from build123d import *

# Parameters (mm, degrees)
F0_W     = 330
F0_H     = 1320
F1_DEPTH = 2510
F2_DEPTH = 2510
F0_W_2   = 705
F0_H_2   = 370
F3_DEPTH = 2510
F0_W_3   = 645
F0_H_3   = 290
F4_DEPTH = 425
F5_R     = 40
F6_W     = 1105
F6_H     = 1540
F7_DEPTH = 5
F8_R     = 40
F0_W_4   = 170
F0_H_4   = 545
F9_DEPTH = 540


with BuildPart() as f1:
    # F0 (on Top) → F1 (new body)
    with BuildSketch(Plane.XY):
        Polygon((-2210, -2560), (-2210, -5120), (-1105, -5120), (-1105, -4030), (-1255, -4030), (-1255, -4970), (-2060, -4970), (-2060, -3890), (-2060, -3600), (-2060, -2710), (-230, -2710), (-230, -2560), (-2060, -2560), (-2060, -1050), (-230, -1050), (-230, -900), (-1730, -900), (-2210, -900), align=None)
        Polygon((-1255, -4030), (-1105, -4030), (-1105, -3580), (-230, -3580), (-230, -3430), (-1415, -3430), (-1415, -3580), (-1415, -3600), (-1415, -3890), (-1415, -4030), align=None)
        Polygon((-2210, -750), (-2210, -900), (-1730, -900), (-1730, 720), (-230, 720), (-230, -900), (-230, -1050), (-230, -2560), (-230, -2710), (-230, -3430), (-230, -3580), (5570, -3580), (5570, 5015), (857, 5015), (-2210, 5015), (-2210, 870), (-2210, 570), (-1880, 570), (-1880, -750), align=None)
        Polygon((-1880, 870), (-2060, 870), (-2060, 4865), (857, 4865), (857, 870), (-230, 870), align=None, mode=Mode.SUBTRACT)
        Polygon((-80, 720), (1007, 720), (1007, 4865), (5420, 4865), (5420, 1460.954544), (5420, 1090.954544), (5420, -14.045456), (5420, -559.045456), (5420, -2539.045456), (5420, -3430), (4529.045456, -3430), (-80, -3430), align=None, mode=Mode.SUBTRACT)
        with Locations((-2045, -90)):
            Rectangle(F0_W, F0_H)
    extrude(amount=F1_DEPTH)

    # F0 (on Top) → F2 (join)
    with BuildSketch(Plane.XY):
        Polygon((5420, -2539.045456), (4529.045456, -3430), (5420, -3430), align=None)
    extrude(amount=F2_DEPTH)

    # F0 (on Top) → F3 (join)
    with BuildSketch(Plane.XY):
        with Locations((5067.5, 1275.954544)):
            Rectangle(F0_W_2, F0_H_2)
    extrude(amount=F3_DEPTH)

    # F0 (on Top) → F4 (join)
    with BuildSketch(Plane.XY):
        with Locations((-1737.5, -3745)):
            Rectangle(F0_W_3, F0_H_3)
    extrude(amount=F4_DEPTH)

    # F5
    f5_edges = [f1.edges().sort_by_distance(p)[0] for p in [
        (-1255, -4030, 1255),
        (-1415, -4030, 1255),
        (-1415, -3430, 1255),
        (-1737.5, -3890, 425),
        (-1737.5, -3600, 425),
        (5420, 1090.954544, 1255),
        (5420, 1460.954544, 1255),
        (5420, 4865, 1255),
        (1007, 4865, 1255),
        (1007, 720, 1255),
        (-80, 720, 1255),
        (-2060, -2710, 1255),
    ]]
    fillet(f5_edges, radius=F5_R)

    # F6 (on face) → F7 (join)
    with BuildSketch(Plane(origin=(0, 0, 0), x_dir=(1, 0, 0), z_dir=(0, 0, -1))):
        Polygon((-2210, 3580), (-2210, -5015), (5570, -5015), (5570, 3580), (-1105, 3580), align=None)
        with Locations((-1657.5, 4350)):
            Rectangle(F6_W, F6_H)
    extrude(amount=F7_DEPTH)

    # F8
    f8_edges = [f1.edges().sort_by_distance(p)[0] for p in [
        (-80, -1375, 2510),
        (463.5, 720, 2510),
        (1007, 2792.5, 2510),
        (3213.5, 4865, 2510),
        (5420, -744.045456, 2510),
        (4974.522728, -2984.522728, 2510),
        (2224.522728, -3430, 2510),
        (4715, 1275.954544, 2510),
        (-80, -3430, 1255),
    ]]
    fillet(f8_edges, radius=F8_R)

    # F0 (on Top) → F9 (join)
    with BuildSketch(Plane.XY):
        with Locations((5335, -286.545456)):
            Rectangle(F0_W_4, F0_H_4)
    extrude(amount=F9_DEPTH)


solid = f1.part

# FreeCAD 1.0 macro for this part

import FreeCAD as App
import Part
import Sketcher
Q = App.Units.Quantity


def edges_at(feature, points):
    """Names of the edges that pass closest to the given points."""
    edges = feature.Shape.Edges
    near = lambda p: min(range(len(edges)), key=lambda i: edges[i].distToShape(Part.Vertex(*p))[0])
    return sorted({f"Edge{near(p) + 1}" for p in points})

doc = App.newDocument("Part")
body = doc.addObject("PartDesign::Body", "Body")

sketch1 = body.newObject("Sketcher::SketchObject", "Sketch")
sketch1.AttachmentSupport = (doc.getObject("XY_Plane"), [""])
sketch1.MapMode = "FlatFace"
sketch1.addGeometry(Part.LineSegment(App.Vector(-2210, -5120, 0), App.Vector(-1105, -5120, 0)), False)
sketch1.addGeometry(Part.LineSegment(App.Vector(-1105, -5120, 0), App.Vector(-1105, -3580, 0)), False)
sketch1.addGeometry(Part.LineSegment(App.Vector(-1105, -3580, 0), App.Vector(5570, -3580, 0)), False)
sketch1.addGeometry(Part.LineSegment(App.Vector(5570, -3580, 0), App.Vector(5570, 5015, 0)), False)
sketch1.addGeometry(Part.LineSegment(App.Vector(5570, 5015, 0), App.Vector(-2210, 5015, 0)), False)
sketch1.addGeometry(Part.LineSegment(App.Vector(-2210, 5015, 0), App.Vector(-2210, -5120, 0)), False)
sketch1.addGeometry(Part.LineSegment(App.Vector(-230, -3430, 0), App.Vector(-1415, -3430, 0)), False)
sketch1.addGeometry(Part.LineSegment(App.Vector(-1415, -3430, 0), App.Vector(-1415, -4030, 0)), False)
sketch1.addGeometry(Part.LineSegment(App.Vector(-1415, -4030, 0), App.Vector(-1255, -4030, 0)), False)
sketch1.addGeometry(Part.LineSegment(App.Vector(-1255, -4030, 0), App.Vector(-1255, -4970, 0)), False)
sketch1.addGeometry(Part.LineSegment(App.Vector(-1255, -4970, 0), App.Vector(-2060, -4970, 0)), False)
sketch1.addGeometry(Part.LineSegment(App.Vector(-2060, -4970, 0), App.Vector(-2060, -2710, 0)), False)
sketch1.addGeometry(Part.LineSegment(App.Vector(-2060, -2710, 0), App.Vector(-230, -2710, 0)), False)
sketch1.addGeometry(Part.LineSegment(App.Vector(-230, -2710, 0), App.Vector(-230, -3430, 0)), False)
sketch1.addGeometry(Part.LineSegment(App.Vector(-230, -2560, 0), App.Vector(-2060, -2560, 0)), False)
sketch1.addGeometry(Part.LineSegment(App.Vector(-2060, -2560, 0), App.Vector(-2060, -1050, 0)), False)
sketch1.addGeometry(Part.LineSegment(App.Vector(-2060, -1050, 0), App.Vector(-230, -1050, 0)), False)
sketch1.addGeometry(Part.LineSegment(App.Vector(-230, -1050, 0), App.Vector(-230, -2560, 0)), False)
sketch1.addGeometry(Part.LineSegment(App.Vector(-230, -900, 0), App.Vector(-1730, -900, 0)), False)
sketch1.addGeometry(Part.LineSegment(App.Vector(-1730, -900, 0), App.Vector(-1730, 720, 0)), False)
sketch1.addGeometry(Part.LineSegment(App.Vector(-1730, 720, 0), App.Vector(-230, 720, 0)), False)
sketch1.addGeometry(Part.LineSegment(App.Vector(-230, 720, 0), App.Vector(-230, -900, 0)), False)
sketch1.addGeometry(Part.LineSegment(App.Vector(857, 870, 0), App.Vector(-2060, 870, 0)), False)
sketch1.addGeometry(Part.LineSegment(App.Vector(-2060, 870, 0), App.Vector(-2060, 4865, 0)), False)
sketch1.addGeometry(Part.LineSegment(App.Vector(-2060, 4865, 0), App.Vector(857, 4865, 0)), False)
sketch1.addGeometry(Part.LineSegment(App.Vector(857, 4865, 0), App.Vector(857, 870, 0)), False)
sketch1.addGeometry(Part.LineSegment(App.Vector(-80, -3430, 0), App.Vector(-80, 720, 0)), False)
sketch1.addGeometry(Part.LineSegment(App.Vector(-80, 720, 0), App.Vector(1007, 720, 0)), False)
sketch1.addGeometry(Part.LineSegment(App.Vector(1007, 720, 0), App.Vector(1007, 4865, 0)), False)
sketch1.addGeometry(Part.LineSegment(App.Vector(1007, 4865, 0), App.Vector(5420, 4865, 0)), False)
sketch1.addGeometry(Part.LineSegment(App.Vector(5420, 4865, 0), App.Vector(5420, -3430, 0)), False)
sketch1.addGeometry(Part.LineSegment(App.Vector(5420, -3430, 0), App.Vector(-80, -3430, 0)), False)
sketch1.addConstraint(Sketcher.Constraint("Coincident", 0, 2, 1, 1))
sketch1.addConstraint(Sketcher.Constraint("Coincident", 1, 2, 2, 1))
sketch1.addConstraint(Sketcher.Constraint("Coincident", 2, 2, 3, 1))
sketch1.addConstraint(Sketcher.Constraint("Coincident", 3, 2, 4, 1))
sketch1.addConstraint(Sketcher.Constraint("Coincident", 4, 2, 5, 1))
sketch1.addConstraint(Sketcher.Constraint("Coincident", 5, 2, 0, 1))
sketch1.addConstraint(Sketcher.Constraint("Coincident", 6, 2, 7, 1))
sketch1.addConstraint(Sketcher.Constraint("Coincident", 7, 2, 8, 1))
sketch1.addConstraint(Sketcher.Constraint("Coincident", 8, 2, 9, 1))
sketch1.addConstraint(Sketcher.Constraint("Coincident", 9, 2, 10, 1))
sketch1.addConstraint(Sketcher.Constraint("Coincident", 10, 2, 11, 1))
sketch1.addConstraint(Sketcher.Constraint("Coincident", 11, 2, 12, 1))
sketch1.addConstraint(Sketcher.Constraint("Coincident", 12, 2, 13, 1))
sketch1.addConstraint(Sketcher.Constraint("Coincident", 13, 2, 6, 1))
sketch1.addConstraint(Sketcher.Constraint("Coincident", 14, 2, 15, 1))
sketch1.addConstraint(Sketcher.Constraint("Coincident", 15, 2, 16, 1))
sketch1.addConstraint(Sketcher.Constraint("Coincident", 16, 2, 17, 1))
sketch1.addConstraint(Sketcher.Constraint("Coincident", 17, 2, 14, 1))
sketch1.addConstraint(Sketcher.Constraint("Coincident", 18, 2, 19, 1))
sketch1.addConstraint(Sketcher.Constraint("Coincident", 19, 2, 20, 1))
sketch1.addConstraint(Sketcher.Constraint("Coincident", 20, 2, 21, 1))
sketch1.addConstraint(Sketcher.Constraint("Coincident", 21, 2, 18, 1))
sketch1.addConstraint(Sketcher.Constraint("Coincident", 22, 2, 23, 1))
sketch1.addConstraint(Sketcher.Constraint("Coincident", 23, 2, 24, 1))
sketch1.addConstraint(Sketcher.Constraint("Coincident", 24, 2, 25, 1))
sketch1.addConstraint(Sketcher.Constraint("Coincident", 25, 2, 22, 1))
sketch1.addConstraint(Sketcher.Constraint("Coincident", 26, 2, 27, 1))
sketch1.addConstraint(Sketcher.Constraint("Coincident", 27, 2, 28, 1))
sketch1.addConstraint(Sketcher.Constraint("Coincident", 28, 2, 29, 1))
sketch1.addConstraint(Sketcher.Constraint("Coincident", 29, 2, 30, 1))
sketch1.addConstraint(Sketcher.Constraint("Coincident", 30, 2, 31, 1))
sketch1.addConstraint(Sketcher.Constraint("Coincident", 31, 2, 26, 1))
sketch1.addConstraint(Sketcher.Constraint("Horizontal", 0))
sketch1.addConstraint(Sketcher.Constraint("Vertical", 1))
sketch1.addConstraint(Sketcher.Constraint("Horizontal", 2))
sketch1.addConstraint(Sketcher.Constraint("Vertical", 3))
sketch1.addConstraint(Sketcher.Constraint("Horizontal", 4))
sketch1.addConstraint(Sketcher.Constraint("Vertical", 5))
sketch1.addConstraint(Sketcher.Constraint("Horizontal", 6))
sketch1.addConstraint(Sketcher.Constraint("Vertical", 7))
sketch1.addConstraint(Sketcher.Constraint("Horizontal", 8))
sketch1.addConstraint(Sketcher.Constraint("Vertical", 9))
sketch1.addConstraint(Sketcher.Constraint("Horizontal", 10))
sketch1.addConstraint(Sketcher.Constraint("Vertical", 11))
sketch1.addConstraint(Sketcher.Constraint("Horizontal", 12))
sketch1.addConstraint(Sketcher.Constraint("Vertical", 13))
sketch1.addConstraint(Sketcher.Constraint("Horizontal", 14))
sketch1.addConstraint(Sketcher.Constraint("Vertical", 15))
sketch1.addConstraint(Sketcher.Constraint("Horizontal", 16))
sketch1.addConstraint(Sketcher.Constraint("Vertical", 17))
sketch1.addConstraint(Sketcher.Constraint("Horizontal", 18))
sketch1.addConstraint(Sketcher.Constraint("Vertical", 19))
sketch1.addConstraint(Sketcher.Constraint("Horizontal", 20))
sketch1.addConstraint(Sketcher.Constraint("Vertical", 21))
sketch1.addConstraint(Sketcher.Constraint("Horizontal", 22))
sketch1.addConstraint(Sketcher.Constraint("Vertical", 23))
sketch1.addConstraint(Sketcher.Constraint("Horizontal", 24))
sketch1.addConstraint(Sketcher.Constraint("Vertical", 25))
sketch1.addConstraint(Sketcher.Constraint("Vertical", 26))
sketch1.addConstraint(Sketcher.Constraint("Horizontal", 27))
sketch1.addConstraint(Sketcher.Constraint("Vertical", 28))
sketch1.addConstraint(Sketcher.Constraint("Horizontal", 29))
sketch1.addConstraint(Sketcher.Constraint("Vertical", 30))
sketch1.addConstraint(Sketcher.Constraint("Horizontal", 31))
sketch1.addConstraint(Sketcher.Constraint("Horizontal", 20, 2, 26, 2))
sketch1.addConstraint(Sketcher.Constraint("Horizontal", 24, 2, 28, 2))
sketch1.addConstraint(Sketcher.Constraint("Horizontal", 13, 2, 30, 2))
sketch1.addConstraint(Sketcher.Constraint("Vertical", 11, 2, 14, 2))
sketch1.addConstraint(Sketcher.Constraint("Vertical", 13, 2, 16, 2))
sketch1.addConstraint(Sketcher.Constraint("Vertical", 17, 2, 20, 2))
sketch1.addConstraint(Sketcher.Constraint("Vertical", 15, 2, 22, 2))
sketch1.addConstraint(Sketcher.Constraint("DistanceX", 0, 1, 0, 2, Q("1105 mm")))
sketch1.addConstraint(Sketcher.Constraint("DistanceX", 2, 1, 2, 2, Q("6675 mm")))
sketch1.addConstraint(Sketcher.Constraint("DistanceX", 6, 2, 6, 1, Q("1185 mm")))
sketch1.addConstraint(Sketcher.Constraint("DistanceX", 8, 1, 8, 2, Q("160 mm")))
sketch1.addConstraint(Sketcher.Constraint("DistanceX", 10, 2, 10, 1, Q("805 mm")))
sketch1.addConstraint(Sketcher.Constraint("DistanceX", 18, 2, 18, 1, Q("1500 mm")))
sketch1.addConstraint(Sketcher.Constraint("DistanceX", 22, 2, 22, 1, Q("2917 mm")))
sketch1.addConstraint(Sketcher.Constraint("DistanceX", 27, 1, 27, 2, Q("1087 mm")))
sketch1.addConstraint(Sketcher.Constraint("DistanceX", 29, 1, 29, 2, Q("4413 mm")))
sketch1.addConstraint(Sketcher.Constraint("DistanceY", 1, 1, 1, 2, Q("1540 mm")))
sketch1.addConstraint(Sketcher.Constraint("DistanceY", 3, 1, 3, 2, Q("8595 mm")))
sketch1.addConstraint(Sketcher.Constraint("DistanceY", 7, 2, 7, 1, Q("600 mm")))
sketch1.addConstraint(Sketcher.Constraint("DistanceY", 9, 2, 9, 1, Q("940 mm")))
sketch1.addConstraint(Sketcher.Constraint("DistanceY", 11, 1, 11, 2, Q("2260 mm")))
sketch1.addConstraint(Sketcher.Constraint("DistanceY", 15, 1, 15, 2, Q("1510 mm")))
sketch1.addConstraint(Sketcher.Constraint("DistanceY", 19, 1, 19, 2, Q("1620 mm")))
sketch1.addConstraint(Sketcher.Constraint("DistanceY", 23, 1, 23, 2, Q("3995 mm")))
sketch1.addConstraint(Sketcher.Constraint("DistanceY", 26, 1, 26, 2, Q("4150 mm")))
sketch1.addConstraint(Sketcher.Constraint("DistanceY", 28, 1, 28, 2, Q("4145 mm")))
sketch1.addConstraint(Sketcher.Constraint("DistanceX", 0, 2, -1, 1, Q("1105 mm")))
sketch1.addConstraint(Sketcher.Constraint("DistanceY", 0, 2, -1, 1, Q("5120 mm")))
sketch1.addConstraint(Sketcher.Constraint("DistanceX", 6, 2, -1, 1, Q("1415 mm")))
sketch1.addConstraint(Sketcher.Constraint("DistanceY", 6, 2, -1, 1, Q("3430 mm")))
sketch1.addConstraint(Sketcher.Constraint("DistanceY", 14, 2, -1, 1, Q("2560 mm")))
sketch1.addConstraint(Sketcher.Constraint("DistanceX", 26, 2, -1, 1, Q("80 mm")))
pad1 = body.newObject("PartDesign::Pad", "Pad")
pad1.Profile = sketch1
pad1.Length = 2510

sketch2 = body.newObject("Sketcher::SketchObject", "Sketch001")
sketch2.AttachmentSupport = (doc.getObject("XY_Plane"), [""])
sketch2.MapMode = "FlatFace"
sketch2.addGeometry(Part.LineSegment(App.Vector(5420, -2539, 0), App.Vector(4529, -3430, 0)), False)
sketch2.addGeometry(Part.LineSegment(App.Vector(4529, -3430, 0), App.Vector(5420, -3430, 0)), False)
sketch2.addGeometry(Part.LineSegment(App.Vector(5420, -3430, 0), App.Vector(5420, -2539, 0)), False)
sketch2.addConstraint(Sketcher.Constraint("Coincident", 0, 2, 1, 1))
sketch2.addConstraint(Sketcher.Constraint("Coincident", 1, 2, 2, 1))
sketch2.addConstraint(Sketcher.Constraint("Coincident", 2, 2, 0, 1))
sketch2.addConstraint(Sketcher.Constraint("Horizontal", 1))
sketch2.addConstraint(Sketcher.Constraint("Vertical", 2))
sketch2.addConstraint(Sketcher.Constraint("Equal", 1, 2))
sketch2.addConstraint(Sketcher.Constraint("Distance", 0, Q("1260 mm")))
sketch2.addConstraint(Sketcher.Constraint("DistanceY", 0, 2, -1, 1, Q("3430 mm")))
sketch2.addConstraint(Sketcher.Constraint("DistanceX", -1, 1, 1, 2, Q("5420 mm")))
pad2 = body.newObject("PartDesign::Pad", "Pad001")
pad2.Profile = sketch2
pad2.Length = 2510

sketch3 = body.newObject("Sketcher::SketchObject", "Sketch002")
sketch3.AttachmentSupport = (doc.getObject("XY_Plane"), [""])
sketch3.MapMode = "FlatFace"
sketch3.addGeometry(Part.LineSegment(App.Vector(4715, 1461, 0), App.Vector(4715, 1091, 0)), False)
sketch3.addGeometry(Part.LineSegment(App.Vector(4715, 1091, 0), App.Vector(5420, 1091, 0)), False)
sketch3.addGeometry(Part.LineSegment(App.Vector(5420, 1091, 0), App.Vector(5420, 1461, 0)), False)
sketch3.addGeometry(Part.LineSegment(App.Vector(5420, 1461, 0), App.Vector(4715, 1461, 0)), False)
sketch3.addConstraint(Sketcher.Constraint("Coincident", 0, 2, 1, 1))
sketch3.addConstraint(Sketcher.Constraint("Coincident", 1, 2, 2, 1))
sketch3.addConstraint(Sketcher.Constraint("Coincident", 2, 2, 3, 1))
sketch3.addConstraint(Sketcher.Constraint("Coincident", 3, 2, 0, 1))
sketch3.addConstraint(Sketcher.Constraint("Vertical", 0))
sketch3.addConstraint(Sketcher.Constraint("Horizontal", 1))
sketch3.addConstraint(Sketcher.Constraint("Vertical", 2))
sketch3.addConstraint(Sketcher.Constraint("Horizontal", 3))
sketch3.addConstraint(Sketcher.Constraint("DistanceX", 1, 1, 1, 2, Q("705 mm")))
sketch3.addConstraint(Sketcher.Constraint("DistanceY", 0, 2, 0, 1, Q("370 mm")))
sketch3.addConstraint(Sketcher.Constraint("DistanceX", -1, 1, 0, 2, Q("4715 mm")))
sketch3.addConstraint(Sketcher.Constraint("DistanceY", -1, 1, 0, 2, Q("1090.954544 mm")))
pad3 = body.newObject("PartDesign::Pad", "Pad002")
pad3.Profile = sketch3
pad3.Length = 2510

sketch4 = body.newObject("Sketcher::SketchObject", "Sketch003")
sketch4.AttachmentSupport = (doc.getObject("XY_Plane"), [""])
sketch4.MapMode = "FlatFace"
sketch4.addGeometry(Part.LineSegment(App.Vector(-2060, -3600, 0), App.Vector(-2060, -3890, 0)), False)
sketch4.addGeometry(Part.LineSegment(App.Vector(-2060, -3890, 0), App.Vector(-1415, -3890, 0)), False)
sketch4.addGeometry(Part.LineSegment(App.Vector(-1415, -3890, 0), App.Vector(-1415, -3600, 0)), False)
sketch4.addGeometry(Part.LineSegment(App.Vector(-1415, -3600, 0), App.Vector(-2060, -3600, 0)), False)
sketch4.addConstraint(Sketcher.Constraint("Coincident", 0, 2, 1, 1))
sketch4.addConstraint(Sketcher.Constraint("Coincident", 1, 2, 2, 1))
sketch4.addConstraint(Sketcher.Constraint("Coincident", 2, 2, 3, 1))
sketch4.addConstraint(Sketcher.Constraint("Coincident", 3, 2, 0, 1))
sketch4.addConstraint(Sketcher.Constraint("Vertical", 0))
sketch4.addConstraint(Sketcher.Constraint("Horizontal", 1))
sketch4.addConstraint(Sketcher.Constraint("Vertical", 2))
sketch4.addConstraint(Sketcher.Constraint("Horizontal", 3))
sketch4.addConstraint(Sketcher.Constraint("DistanceX", 1, 1, 1, 2, Q("645 mm")))
sketch4.addConstraint(Sketcher.Constraint("DistanceY", 0, 2, 0, 1, Q("290 mm")))
sketch4.addConstraint(Sketcher.Constraint("DistanceX", 0, 2, -1, 1, Q("2060 mm")))
sketch4.addConstraint(Sketcher.Constraint("DistanceY", 0, 2, -1, 1, Q("3890 mm")))
pad4 = body.newObject("PartDesign::Pad", "Pad003")
pad4.Profile = sketch4
pad4.Length = 425
doc.recompute()

fillet = body.newObject("PartDesign::Fillet", "Fillet")
fillet.Base = (pad4, edges_at(pad4, [
    (-1255, -4030, 1255),
    (-1415, -4030, 1255),
    (-1415, -3430, 1255),
    (-1737.5, -3890, 425),
    (-1737.5, -3600, 425),
    (5420, 1090.955, 1255),
    (5420, 1460.955, 1255),
    (5420, 4865, 1255),
    (1007, 4865, 1255),
    (1007, 720, 1255),
    (-80, 720, 1255),
    (-2060, -2710, 1255),
]))
fillet.Radius = 40

sketch5 = body.newObject("Sketcher::SketchObject", "Sketch004")
sketch5.AttachmentSupport = (doc.getObject("XY_Plane"), [""])
sketch5.MapMode = "FlatFace"
sketch5.addGeometry(Part.LineSegment(App.Vector(-2210, 5015, 0), App.Vector(5570, 5015, 0)), False)
sketch5.addGeometry(Part.LineSegment(App.Vector(5570, 5015, 0), App.Vector(5570, -3580, 0)), False)
sketch5.addGeometry(Part.LineSegment(App.Vector(5570, -3580, 0), App.Vector(-1105, -3580, 0)), False)
sketch5.addGeometry(Part.LineSegment(App.Vector(-1105, -3580, 0), App.Vector(-1105, -5120, 0)), False)
sketch5.addGeometry(Part.LineSegment(App.Vector(-1105, -5120, 0), App.Vector(-2210, -5120, 0)), False)
sketch5.addGeometry(Part.LineSegment(App.Vector(-2210, -5120, 0), App.Vector(-2210, 5015, 0)), False)
sketch5.addConstraint(Sketcher.Constraint("Coincident", 0, 2, 1, 1))
sketch5.addConstraint(Sketcher.Constraint("Coincident", 1, 2, 2, 1))
sketch5.addConstraint(Sketcher.Constraint("Coincident", 2, 2, 3, 1))
sketch5.addConstraint(Sketcher.Constraint("Coincident", 3, 2, 4, 1))
sketch5.addConstraint(Sketcher.Constraint("Coincident", 4, 2, 5, 1))
sketch5.addConstraint(Sketcher.Constraint("Coincident", 5, 2, 0, 1))
sketch5.addConstraint(Sketcher.Constraint("Horizontal", 0))
sketch5.addConstraint(Sketcher.Constraint("Vertical", 1))
sketch5.addConstraint(Sketcher.Constraint("Horizontal", 2))
sketch5.addConstraint(Sketcher.Constraint("Vertical", 3))
sketch5.addConstraint(Sketcher.Constraint("Horizontal", 4))
sketch5.addConstraint(Sketcher.Constraint("Vertical", 5))
sketch5.addConstraint(Sketcher.Constraint("DistanceX", 0, 1, 0, 2, Q("7780 mm")))
sketch5.addConstraint(Sketcher.Constraint("DistanceX", 2, 2, 2, 1, Q("6675 mm")))
sketch5.addConstraint(Sketcher.Constraint("DistanceY", 1, 2, 1, 1, Q("8595 mm")))
sketch5.addConstraint(Sketcher.Constraint("DistanceY", 3, 2, 3, 1, Q("1540 mm")))
sketch5.addConstraint(Sketcher.Constraint("DistanceX", -1, 1, 0, 2, Q("5570 mm")))
sketch5.addConstraint(Sketcher.Constraint("DistanceY", -1, 1, 0, 2, Q("5015 mm")))
pad5 = body.newObject("PartDesign::Pad", "Pad004")
pad5.Profile = sketch5
pad5.Length = 5
pad5.Reversed = True
doc.recompute()

fillet2 = body.newObject("PartDesign::Fillet", "Fillet001")
fillet2.Base = (pad5, edges_at(pad5, [
    (-80, -1375, 2510),
    (463.5, 720, 2510),
    (1007, 2792.5, 2510),
    (3213.5, 4865, 2510),
    (5420, -744.045, 2510),
    (4974.523, -2984.523, 2510),
    (2224.523, -3430, 2510),
    (4715, 1275.955, 2510),
    (-80, -3430, 1255),
]))
fillet2.Radius = 40

sketch6 = body.newObject("Sketcher::SketchObject", "Sketch005")
sketch6.AttachmentSupport = (doc.getObject("XY_Plane"), [""])
sketch6.MapMode = "FlatFace"
sketch6.addGeometry(Part.LineSegment(App.Vector(5250, -14, 0), App.Vector(5250, -559, 0)), False)
sketch6.addGeometry(Part.LineSegment(App.Vector(5250, -559, 0), App.Vector(5420, -559, 0)), False)
sketch6.addGeometry(Part.LineSegment(App.Vector(5420, -559, 0), App.Vector(5420, -14, 0)), False)
sketch6.addGeometry(Part.LineSegment(App.Vector(5420, -14, 0), App.Vector(5250, -14, 0)), False)
sketch6.addConstraint(Sketcher.Constraint("Coincident", 0, 2, 1, 1))
sketch6.addConstraint(Sketcher.Constraint("Coincident", 1, 2, 2, 1))
sketch6.addConstraint(Sketcher.Constraint("Coincident", 2, 2, 3, 1))
sketch6.addConstraint(Sketcher.Constraint("Coincident", 3, 2, 0, 1))
sketch6.addConstraint(Sketcher.Constraint("Vertical", 0))
sketch6.addConstraint(Sketcher.Constraint("Horizontal", 1))
sketch6.addConstraint(Sketcher.Constraint("Vertical", 2))
sketch6.addConstraint(Sketcher.Constraint("Horizontal", 3))
sketch6.addConstraint(Sketcher.Constraint("DistanceX", 1, 1, 1, 2, Q("170 mm")))
sketch6.addConstraint(Sketcher.Constraint("DistanceY", 0, 2, 0, 1, Q("545 mm")))
sketch6.addConstraint(Sketcher.Constraint("DistanceX", -1, 1, 0, 2, Q("5250 mm")))
sketch6.addConstraint(Sketcher.Constraint("DistanceY", 0, 2, -1, 1, Q("559.045456 mm")))
pad6 = body.newObject("PartDesign::Pad", "Pad005")
pad6.Profile = sketch6
pad6.Length = 540

doc.recompute()
